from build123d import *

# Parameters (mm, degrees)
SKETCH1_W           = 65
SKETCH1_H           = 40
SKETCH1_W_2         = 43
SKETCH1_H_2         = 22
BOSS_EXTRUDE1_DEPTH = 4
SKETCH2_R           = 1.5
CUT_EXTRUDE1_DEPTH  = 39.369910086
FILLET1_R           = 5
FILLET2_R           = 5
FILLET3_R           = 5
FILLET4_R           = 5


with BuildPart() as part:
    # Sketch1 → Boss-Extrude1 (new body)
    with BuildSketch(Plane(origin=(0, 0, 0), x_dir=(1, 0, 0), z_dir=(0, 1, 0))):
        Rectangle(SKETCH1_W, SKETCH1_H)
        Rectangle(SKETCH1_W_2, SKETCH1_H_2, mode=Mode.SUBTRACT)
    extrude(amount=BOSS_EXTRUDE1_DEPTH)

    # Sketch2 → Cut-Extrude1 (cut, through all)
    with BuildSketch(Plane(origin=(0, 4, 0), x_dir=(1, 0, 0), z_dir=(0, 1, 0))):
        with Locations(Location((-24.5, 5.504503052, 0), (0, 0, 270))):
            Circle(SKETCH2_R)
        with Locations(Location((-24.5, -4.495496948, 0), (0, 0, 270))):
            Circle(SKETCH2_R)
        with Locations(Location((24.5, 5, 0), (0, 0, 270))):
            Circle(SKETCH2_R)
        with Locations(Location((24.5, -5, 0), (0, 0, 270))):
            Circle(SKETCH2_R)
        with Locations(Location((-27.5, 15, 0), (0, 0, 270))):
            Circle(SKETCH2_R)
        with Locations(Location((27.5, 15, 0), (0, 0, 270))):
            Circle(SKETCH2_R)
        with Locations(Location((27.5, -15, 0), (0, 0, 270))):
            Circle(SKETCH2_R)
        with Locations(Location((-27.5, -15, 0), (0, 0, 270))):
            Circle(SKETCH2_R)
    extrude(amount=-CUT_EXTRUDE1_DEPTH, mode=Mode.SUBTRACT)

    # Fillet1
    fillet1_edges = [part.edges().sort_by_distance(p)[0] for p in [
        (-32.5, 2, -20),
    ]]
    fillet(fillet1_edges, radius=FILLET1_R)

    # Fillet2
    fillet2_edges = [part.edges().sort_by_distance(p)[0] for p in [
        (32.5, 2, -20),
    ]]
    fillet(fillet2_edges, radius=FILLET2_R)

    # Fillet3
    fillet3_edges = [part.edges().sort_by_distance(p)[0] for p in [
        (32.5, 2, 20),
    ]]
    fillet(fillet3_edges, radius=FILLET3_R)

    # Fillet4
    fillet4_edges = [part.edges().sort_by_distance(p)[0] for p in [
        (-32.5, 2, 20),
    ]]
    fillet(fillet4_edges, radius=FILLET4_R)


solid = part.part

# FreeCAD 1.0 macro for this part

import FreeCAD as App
import Part
import Sketcher
Q = App.Units.Quantity


def edges_at(feature, points):
    """Names of the edges that pass closest to the given points."""
    edges = feature.Shape.Edges
    near = lambda p: min(range(len(edges)), key=lambda i: edges[i].distToShape(Part.Vertex(*p))[0])
    return sorted({f"Edge{near(p) + 1}" for p in points})

doc = App.newDocument("Part")
body = doc.addObject("PartDesign::Body", "Body")

# Sketch on XZ plane
sketch1 = body.newObject("Sketcher::SketchObject", "Sketch")
sketch1.AttachmentSupport = (doc.getObject("XZ_Plane"), [""])
sketch1.MapMode = "FlatFace"
sketch1.addGeometry([
    Part.LineSegment(App.Vector(-32, -20, 0), App.Vector(-32, 20, 0)),  # 0
    Part.LineSegment(App.Vector(-32, 20, 0), App.Vector(32, 20, 0)),  # 1
    Part.LineSegment(App.Vector(32, 20, 0), App.Vector(32, -20, 0)),  # 2
    Part.LineSegment(App.Vector(32, -20, 0), App.Vector(-32, -20, 0)),  # 3
    Part.LineSegment(App.Vector(22, 11, 0), App.Vector(-22, 11, 0)),  # 4
    Part.LineSegment(App.Vector(-22, 11, 0), App.Vector(-22, -11, 0)),  # 5
    Part.LineSegment(App.Vector(-22, -11, 0), App.Vector(22, -11, 0)),  # 6
    Part.LineSegment(App.Vector(22, -11, 0), App.Vector(22, 11, 0)),  # 7
], False)
sketch1.addConstraint([
    Sketcher.Constraint("Coincident", 0, 2, 1, 1),
    Sketcher.Constraint("Coincident", 1, 2, 2, 1),
    Sketcher.Constraint("Coincident", 2, 2, 3, 1),
    Sketcher.Constraint("Coincident", 3, 2, 0, 1),
    Sketcher.Constraint("Coincident", 4, 2, 5, 1),
    Sketcher.Constraint("Coincident", 5, 2, 6, 1),
    Sketcher.Constraint("Coincident", 6, 2, 7, 1),
    Sketcher.Constraint("Coincident", 7, 2, 4, 1),
    Sketcher.Constraint("Vertical", 0),
    Sketcher.Constraint("Horizontal", 1),
    Sketcher.Constraint("Vertical", 2),
    Sketcher.Constraint("Horizontal", 3),
    Sketcher.Constraint("Horizontal", 4),
    Sketcher.Constraint("Vertical", 5),
    Sketcher.Constraint("Horizontal", 6),
    Sketcher.Constraint("Vertical", 7),
    Sketcher.Constraint("Symmetric", 0, 2, 2, 2, -1, 1),
    Sketcher.Constraint("Symmetric", 4, 2, 6, 2, -1, 1),
    Sketcher.Constraint("DistanceX", 1, 1, 1, 2, Q("65 mm")),
    Sketcher.Constraint("DistanceX", 4, 2, 4, 1, Q("43 mm")),
    Sketcher.Constraint("DistanceY", 0, 1, 0, 2, Q("40 mm")),
    Sketcher.Constraint("DistanceY", 5, 2, 5, 1, Q("22 mm")),
])
pad1 = body.newObject("PartDesign::Pad", "Pad")
pad1.Profile = sketch1
pad1.Length = 4
pad1.Reversed = True

# Sketch on XZ plane
sketch2 = body.newObject("Sketcher::SketchObject", "Sketch001")
sketch2.AttachmentSupport = (doc.getObject("XZ_Plane"), [""])
sketch2.MapMode = "FlatFace"
sketch2.AttachmentOffset = App.Placement(App.Vector(0, 0, -4), App.Rotation())
sketch2.addGeometry([
    Part.Circle(App.Vector(-24.5, -5.5, 0), App.Vector(0, 0, 1), 1.5),  # 0
    Part.Circle(App.Vector(-24.5, 4.5, 0), App.Vector(0, 0, 1), 1.5),  # 1
    Part.Circle(App.Vector(24.5, -5, 0), App.Vector(0, 0, 1), 1.5),  # 2
    Part.Circle(App.Vector(24.5, 5, 0), App.Vector(0, 0, 1), 1.5),  # 3
    Part.Circle(App.Vector(-27.5, -15, 0), App.Vector(0, 0, 1), 1.5),  # 4
    Part.Circle(App.Vector(27.5, -15, 0), App.Vector(0, 0, 1), 1.5),  # 5
    Part.Circle(App.Vector(27.5, 15, 0), App.Vector(0, 0, 1), 1.5),  # 6
    Part.Circle(App.Vector(-27.5, 15, 0), App.Vector(0, 0, 1), 1.5),  # 7
], False)
sketch2.addConstraint([
    Sketcher.Constraint("Equal", 0, 1),
    Sketcher.Constraint("Equal", 1, 2),
    Sketcher.Constraint("Equal", 2, 3),
    Sketcher.Constraint("Equal", 3, 4),
    Sketcher.Constraint("Equal", 4, 5),
    Sketcher.Constraint("Equal", 5, 6),
    Sketcher.Constraint("Equal", 6, 7),
    Sketcher.Constraint("Symmetric", 4, 3, 6, 3, -1, 1),
    Sketcher.Constraint("Symmetric", 5, 3, 7, 3, -1, 1),
    Sketcher.Constraint("Symmetric", 4, 3, 5, 3, -2),
    Sketcher.Constraint("Symmetric", 2, 3, 3, 3, -1),
    Sketcher.Constraint("Vertical", 0, 3, 1, 3),
    Sketcher.Constraint("Diameter", 0, Q("3 mm")),
    Sketcher.Constraint("DistanceY", 2, 3, -1, 1, Q("5 mm")),
    Sketcher.Constraint("DistanceY", 4, 3, -1, 1, Q("15 mm")),
    Sketcher.Constraint("DistanceY", 0, 3, 1, 3, Q("10 mm")),
    Sketcher.Constraint("DistanceX", 0, 3, 2, 3, Q("49 mm")),
    Sketcher.Constraint("DistanceX", 4, 3, 0, 3, Q("3 mm")),
    Sketcher.Constraint("DistanceX", 2, 3, 5, 3, Q("3 mm")),
    Sketcher.Constraint("DistanceY", 0, 3, -1, 1, Q("5.504503 mm")),
])
pocket1 = body.newObject("PartDesign::Pocket", "Pocket")
pocket1.Profile = sketch2
pocket1.Type = "ThroughAll"
pocket1.Reversed = True
doc.recompute()

fillet = body.newObject("PartDesign::Fillet", "Fillet")
fillet.Base = (pocket1, edges_at(pocket1, [(-32.5, 2, -20)]))
fillet.Radius = 5
doc.recompute()

fillet2 = body.newObject("PartDesign::Fillet", "Fillet001")
fillet2.Base = (fillet, edges_at(fillet, [(32.5, 2, -20)]))
fillet2.Radius = 5
doc.recompute()

fillet3 = body.newObject("PartDesign::Fillet", "Fillet002")
fillet3.Base = (fillet2, edges_at(fillet2, [(32.5, 2, 20)]))
fillet3.Radius = 5
doc.recompute()

fillet4 = body.newObject("PartDesign::Fillet", "Fillet003")
fillet4.Base = (fillet3, edges_at(fillet3, [(-32.5, 2, 20)]))
fillet4.Radius = 5

doc.recompute()
